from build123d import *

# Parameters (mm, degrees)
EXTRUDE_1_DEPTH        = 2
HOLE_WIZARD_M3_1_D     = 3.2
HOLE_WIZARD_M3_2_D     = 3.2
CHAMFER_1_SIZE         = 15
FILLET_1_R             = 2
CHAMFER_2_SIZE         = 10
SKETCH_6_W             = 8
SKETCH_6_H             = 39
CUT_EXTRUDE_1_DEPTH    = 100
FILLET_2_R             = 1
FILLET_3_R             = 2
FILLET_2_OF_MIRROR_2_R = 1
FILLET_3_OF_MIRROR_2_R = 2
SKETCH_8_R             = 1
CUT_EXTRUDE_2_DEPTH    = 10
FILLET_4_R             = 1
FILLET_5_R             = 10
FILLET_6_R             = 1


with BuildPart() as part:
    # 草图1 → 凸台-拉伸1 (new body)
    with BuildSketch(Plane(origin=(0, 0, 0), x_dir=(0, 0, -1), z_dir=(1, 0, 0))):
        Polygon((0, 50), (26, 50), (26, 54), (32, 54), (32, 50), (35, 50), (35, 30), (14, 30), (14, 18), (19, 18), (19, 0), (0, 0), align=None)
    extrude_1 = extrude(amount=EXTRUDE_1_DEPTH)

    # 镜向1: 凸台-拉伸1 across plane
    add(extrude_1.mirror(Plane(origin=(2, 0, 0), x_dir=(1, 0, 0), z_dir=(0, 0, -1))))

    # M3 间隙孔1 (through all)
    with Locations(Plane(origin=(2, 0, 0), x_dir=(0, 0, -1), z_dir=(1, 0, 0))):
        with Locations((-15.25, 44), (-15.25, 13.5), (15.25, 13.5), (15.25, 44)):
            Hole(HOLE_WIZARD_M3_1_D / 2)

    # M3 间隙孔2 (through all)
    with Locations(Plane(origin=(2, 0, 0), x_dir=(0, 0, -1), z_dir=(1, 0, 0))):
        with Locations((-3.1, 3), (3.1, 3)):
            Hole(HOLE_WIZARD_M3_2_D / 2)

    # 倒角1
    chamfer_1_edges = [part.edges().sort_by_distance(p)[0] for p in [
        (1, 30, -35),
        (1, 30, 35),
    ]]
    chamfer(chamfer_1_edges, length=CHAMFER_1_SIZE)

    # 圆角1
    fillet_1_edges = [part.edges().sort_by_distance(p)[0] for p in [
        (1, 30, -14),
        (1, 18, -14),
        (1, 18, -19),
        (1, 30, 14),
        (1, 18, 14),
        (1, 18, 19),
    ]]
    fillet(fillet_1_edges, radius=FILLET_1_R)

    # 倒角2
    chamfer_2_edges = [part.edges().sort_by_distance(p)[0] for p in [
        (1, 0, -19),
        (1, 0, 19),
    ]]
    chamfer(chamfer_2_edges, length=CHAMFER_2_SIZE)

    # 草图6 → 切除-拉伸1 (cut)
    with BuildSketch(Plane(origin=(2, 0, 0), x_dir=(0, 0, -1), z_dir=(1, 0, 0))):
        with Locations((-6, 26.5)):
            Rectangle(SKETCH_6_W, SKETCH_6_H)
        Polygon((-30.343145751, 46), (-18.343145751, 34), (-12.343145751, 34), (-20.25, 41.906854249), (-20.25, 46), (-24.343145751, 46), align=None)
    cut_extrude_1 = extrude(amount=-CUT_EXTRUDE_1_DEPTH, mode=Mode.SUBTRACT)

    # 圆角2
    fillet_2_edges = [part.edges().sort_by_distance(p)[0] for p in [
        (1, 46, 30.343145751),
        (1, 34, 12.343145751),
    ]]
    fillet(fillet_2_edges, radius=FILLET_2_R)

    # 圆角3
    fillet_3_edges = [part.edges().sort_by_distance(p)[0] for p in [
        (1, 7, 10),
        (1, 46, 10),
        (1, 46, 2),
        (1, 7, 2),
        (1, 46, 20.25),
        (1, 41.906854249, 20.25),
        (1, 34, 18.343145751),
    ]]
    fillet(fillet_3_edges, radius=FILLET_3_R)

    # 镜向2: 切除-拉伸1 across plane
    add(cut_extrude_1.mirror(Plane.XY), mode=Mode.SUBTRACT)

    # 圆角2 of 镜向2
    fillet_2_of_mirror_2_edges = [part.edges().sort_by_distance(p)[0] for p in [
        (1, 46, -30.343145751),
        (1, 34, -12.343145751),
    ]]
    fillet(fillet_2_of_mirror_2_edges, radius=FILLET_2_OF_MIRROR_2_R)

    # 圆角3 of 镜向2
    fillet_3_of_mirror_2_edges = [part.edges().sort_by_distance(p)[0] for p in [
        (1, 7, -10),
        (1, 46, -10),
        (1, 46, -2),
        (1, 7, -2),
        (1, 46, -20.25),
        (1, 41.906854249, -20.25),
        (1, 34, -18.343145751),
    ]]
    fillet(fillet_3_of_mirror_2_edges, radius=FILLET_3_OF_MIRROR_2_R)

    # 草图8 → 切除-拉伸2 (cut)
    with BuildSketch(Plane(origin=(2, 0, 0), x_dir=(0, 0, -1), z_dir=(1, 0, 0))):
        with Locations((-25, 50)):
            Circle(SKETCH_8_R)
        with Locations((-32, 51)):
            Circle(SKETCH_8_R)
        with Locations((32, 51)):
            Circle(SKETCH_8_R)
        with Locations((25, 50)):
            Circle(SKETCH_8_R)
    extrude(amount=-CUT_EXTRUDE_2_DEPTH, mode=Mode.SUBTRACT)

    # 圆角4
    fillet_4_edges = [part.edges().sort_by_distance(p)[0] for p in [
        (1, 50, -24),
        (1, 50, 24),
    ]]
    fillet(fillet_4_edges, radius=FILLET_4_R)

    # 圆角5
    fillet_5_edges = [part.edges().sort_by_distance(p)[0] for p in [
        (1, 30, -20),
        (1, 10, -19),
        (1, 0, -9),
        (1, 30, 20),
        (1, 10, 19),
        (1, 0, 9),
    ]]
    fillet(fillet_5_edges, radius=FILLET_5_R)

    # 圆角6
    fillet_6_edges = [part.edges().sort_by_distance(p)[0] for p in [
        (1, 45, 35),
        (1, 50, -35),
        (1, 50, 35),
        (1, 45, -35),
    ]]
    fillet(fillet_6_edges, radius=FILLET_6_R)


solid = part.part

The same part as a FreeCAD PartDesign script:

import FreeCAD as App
import Part
import Sketcher
Q = App.Units.Quantity


def edges_at(feature, points):
    """Names of the edges that pass closest to the given points."""
    edges = feature.Shape.Edges
    near = lambda p: min(range(len(edges)), key=lambda i: edges[i].distToShape(Part.Vertex(*p))[0])
    return sorted({f"Edge{near(p) + 1}" for p in points})

doc = App.newDocument("Part")
body = doc.addObject("PartDesign::Body", "Body")

# Sketch on YZ plane
sketch1 = body.newObject("Sketcher::SketchObject", "Sketch")
sketch1.AttachmentSupport = (doc.getObject("YZ_Plane"), [""])
sketch1.MapMode = "FlatFace"
sketch1.addGeometry(Part.LineSegment(App.Vector(50, -26, 0), App.Vector(50, 0, 0)), False)
sketch1.addGeometry(Part.LineSegment(App.Vector(50, 0, 0), App.Vector(0, 0, 0)), False)
sketch1.addGeometry(Part.LineSegment(App.Vector(0, 0, 0), App.Vector(0, -19, 0)), False)
sketch1.addGeometry(Part.LineSegment(App.Vector(0, -19, 0), App.Vector(18, -19, 0)), False)
sketch1.addGeometry(Part.LineSegment(App.Vector(18, -19, 0), App.Vector(18, -14, 0)), False)
sketch1.addGeometry(Part.LineSegment(App.Vector(18, -14, 0), App.Vector(30, -14, 0)), False)
sketch1.addGeometry(Part.LineSegment(App.Vector(30, -14, 0), App.Vector(30, -35, 0)), False)
sketch1.addGeometry(Part.LineSegment(App.Vector(30, -35, 0), App.Vector(50, -35, 0)), False)
sketch1.addGeometry(Part.LineSegment(App.Vector(50, -35, 0), App.Vector(50, -32, 0)), False)
sketch1.addGeometry(Part.LineSegment(App.Vector(50, -32, 0), App.Vector(54, -32, 0)), False)
sketch1.addGeometry(Part.LineSegment(App.Vector(54, -32, 0), App.Vector(54, -26, 0)), False)
sketch1.addGeometry(Part.LineSegment(App.Vector(54, -26, 0), App.Vector(50, -26, 0)), False)
sketch1.addConstraint(Sketcher.Constraint("Coincident", 0, 2, 1, 1))
sketch1.addConstraint(Sketcher.Constraint("Coincident", 1, 2, 2, 1))
sketch1.addConstraint(Sketcher.Constraint("Coincident", 2, 2, 3, 1))
sketch1.addConstraint(Sketcher.Constraint("Coincident", 3, 2, 4, 1))
sketch1.addConstraint(Sketcher.Constraint("Coincident", 4, 2, 5, 1))
sketch1.addConstraint(Sketcher.Constraint("Coincident", 5, 2, 6, 1))
sketch1.addConstraint(Sketcher.Constraint("Coincident", 6, 2, 7, 1))
sketch1.addConstraint(Sketcher.Constraint("Coincident", 7, 2, 8, 1))
sketch1.addConstraint(Sketcher.Constraint("Coincident", 8, 2, 9, 1))
sketch1.addConstraint(Sketcher.Constraint("Coincident", 9, 2, 10, 1))
sketch1.addConstraint(Sketcher.Constraint("Coincident", 10, 2, 11, 1))
sketch1.addConstraint(Sketcher.Constraint("Coincident", 11, 2, 0, 1))
sketch1.addConstraint(Sketcher.Constraint("Vertical", 0))
sketch1.addConstraint(Sketcher.Constraint("Horizontal", 1))
sketch1.addConstraint(Sketcher.Constraint("Vertical", 2))
sketch1.addConstraint(Sketcher.Constraint("Horizontal", 3))
sketch1.addConstraint(Sketcher.Constraint("Vertical", 4))
sketch1.addConstraint(Sketcher.Constraint("Horizontal", 5))
sketch1.addConstraint(Sketcher.Constraint("Vertical", 6))
sketch1.addConstraint(Sketcher.Constraint("Horizontal", 7))
sketch1.addConstraint(Sketcher.Constraint("Vertical", 8))
sketch1.addConstraint(Sketcher.Constraint("Horizontal", 9))
sketch1.addConstraint(Sketcher.Constraint("Vertical", 10))
sketch1.addConstraint(Sketcher.Constraint("Horizontal", 11))
sketch1.addConstraint(Sketcher.Constraint("Coincident", 1, 2, -1, 1))
sketch1.addConstraint(Sketcher.Constraint("Vertical", 0, 2, 7, 2))
sketch1.addConstraint(Sketcher.Constraint("DistanceX", 1, 2, 1, 1, Q("50 mm")))
sketch1.addConstraint(Sketcher.Constraint("DistanceX", 3, 1, 3, 2, Q("18 mm")))
sketch1.addConstraint(Sketcher.Constraint("DistanceX", 5, 1, 5, 2, Q("12 mm")))
sketch1.addConstraint(Sketcher.Constraint("DistanceX", 9, 1, 9, 2, Q("4 mm")))
sketch1.addConstraint(Sketcher.Constraint("DistanceY", 0, 1, 0, 2, Q("26 mm")))
sketch1.addConstraint(Sketcher.Constraint("DistanceY", 2, 2, 2, 1, Q("19 mm")))
sketch1.addConstraint(Sketcher.Constraint("DistanceY", 4, 1, 4, 2, Q("5 mm")))
sketch1.addConstraint(Sketcher.Constraint("DistanceY", 6, 2, 6, 1, Q("21 mm")))
sketch1.addConstraint(Sketcher.Constraint("DistanceY", 8, 1, 8, 2, Q("3 mm")))
pad1 = body.newObject("PartDesign::Pad", "Pad")
pad1.Profile = sketch1
pad1.Length = 2
doc.recompute()

mirrored = body.newObject("PartDesign::Mirrored", "Mirrored")
mirrored.Originals = [pad1]
mirrored.MirrorPlane = (doc.getObject("XY_Plane"), [""])
body.Tip = mirrored

# Sketch on YZ plane
sketch2 = body.newObject("Sketcher::SketchObject", "Sketch001")
sketch2.AttachmentSupport = (doc.getObject("YZ_Plane"), [""])
sketch2.MapMode = "FlatFace"
sketch2.AttachmentOffset = App.Placement(App.Vector(0, 0, 2), App.Rotation())
sketch2.addGeometry(Part.Circle(App.Vector(44, 15.25, 0), App.Vector(0, 0, 1), 1.6), False)
sketch2.addGeometry(Part.Circle(App.Vector(13.5, 15.25, 0), App.Vector(0, 0, 1), 1.6), False)
sketch2.addGeometry(Part.Circle(App.Vector(13.5, -15.25, 0), App.Vector(0, 0, 1), 1.6), False)
sketch2.addGeometry(Part.Circle(App.Vector(44, -15.25, 0), App.Vector(0, 0, 1), 1.6), False)
sketch2.addConstraint(Sketcher.Constraint("Equal", 0, 1))
sketch2.addConstraint(Sketcher.Constraint("Equal", 1, 2))
sketch2.addConstraint(Sketcher.Constraint("Equal", 2, 3))
sketch2.addConstraint(Sketcher.Constraint("Symmetric", 1, 3, 2, 3, -1))
sketch2.addConstraint(Sketcher.Constraint("Symmetric", 0, 3, 3, 3, -1))
sketch2.addConstraint(Sketcher.Constraint("Horizontal", 0, 3, 1, 3))
sketch2.addConstraint(Sketcher.Constraint("Diameter", 0, Q("3.2 mm")))
sketch2.addConstraint(Sketcher.Constraint("DistanceX", -1, 1, 0, 3, Q("44 mm")))
sketch2.addConstraint(Sketcher.Constraint("DistanceX", -1, 1, 1, 3, Q("13.5 mm")))
sketch2.addConstraint(Sketcher.Constraint("DistanceY", 2, 3, 1, 3, Q("30.5 mm")))
doc.recompute()
hole = body.newObject("PartDesign::Hole", "Hole")
hole.Profile = sketch2
hole.ThreadType = "None"
hole.Diameter = 3.2
hole.DepthType = "ThroughAll"

# Sketch on YZ plane
sketch3 = body.newObject("Sketcher::SketchObject", "Sketch002")
sketch3.AttachmentSupport = (doc.getObject("YZ_Plane"), [""])
sketch3.MapMode = "FlatFace"
sketch3.AttachmentOffset = App.Placement(App.Vector(0, 0, 2), App.Rotation())
sketch3.addGeometry(Part.Circle(App.Vector(3, 3.1, 0), App.Vector(0, 0, 1), 1.6), False)
sketch3.addGeometry(Part.Circle(App.Vector(3, -3.1, 0), App.Vector(0, 0, 1), 1.6), False)
sketch3.addConstraint(Sketcher.Constraint("Equal", 0, 1))
sketch3.addConstraint(Sketcher.Constraint("Symmetric", 0, 3, 1, 3, -1))
sketch3.addConstraint(Sketcher.Constraint("Diameter", 0, Q("3.2 mm")))
sketch3.addConstraint(Sketcher.Constraint("DistanceX", -1, 1, 0, 3, Q("3 mm")))
sketch3.addConstraint(Sketcher.Constraint("DistanceY", -1, 1, 0, 3, Q("3.1 mm")))
doc.recompute()
hole2 = body.newObject("PartDesign::Hole", "Hole001")
hole2.Profile = sketch3
hole2.ThreadType = "None"
hole2.Diameter = 3.2
hole2.DepthType = "ThroughAll"
doc.recompute()

chamfer = body.newObject("PartDesign::Chamfer", "Chamfer")
chamfer.Base = (hole2, edges_at(hole2, [(1, 30, -35), (1, 30, 35)]))
chamfer.Size = 15
doc.recompute()

fillet = body.newObject("PartDesign::Fillet", "Fillet")
fillet.Base = (chamfer, edges_at(chamfer, [
    (1, 30, -14),
    (1, 18, -14),
    (1, 18, -19),
    (1, 30, 14),
    (1, 18, 14),
    (1, 18, 19),
]))
fillet.Radius = 2
doc.recompute()

chamfer2 = body.newObject("PartDesign::Chamfer", "Chamfer001")
chamfer2.Base = (fillet, edges_at(fillet, [(1, 0, -19), (1, 0, 19)]))
chamfer2.Size = 10

# Sketch on YZ plane
sketch4 = body.newObject("Sketcher::SketchObject", "Sketch003")
sketch4.AttachmentSupport = (doc.getObject("YZ_Plane"), [""])
sketch4.MapMode = "FlatFace"
sketch4.AttachmentOffset = App.Placement(App.Vector(0, 0, 2), App.Rotation())
sketch4.addGeometry(Part.LineSegment(App.Vector(46, 10, 0), App.Vector(7, 10, 0)), False)
sketch4.addGeometry(Part.LineSegment(App.Vector(7, 10, 0), App.Vector(7, 2, 0)), False)
sketch4.addGeometry(Part.LineSegment(App.Vector(7, 2, 0), App.Vector(46, 2, 0)), False)
sketch4.addGeometry(Part.LineSegment(App.Vector(46, 2, 0), App.Vector(46, 10, 0)), False)
sketch4.addGeometry(Part.LineSegment(App.Vector(46, 30.343146, 0), App.Vector(34, 18.343146, 0)), False)
sketch4.addGeometry(Part.LineSegment(App.Vector(34, 18.343146, 0), App.Vector(34, 12.343146, 0)), False)
sketch4.addGeometry(Part.LineSegment(App.Vector(34, 12.343146, 0), App.Vector(41.906854, 20.25, 0)), False)
sketch4.addGeometry(Part.LineSegment(App.Vector(41.906854, 20.25, 0), App.Vector(46, 20.25, 0)), False)
sketch4.addGeometry(Part.LineSegment(App.Vector(46, 20.25, 0), App.Vector(46, 30.343146, 0)), False)
sketch4.addConstraint(Sketcher.Constraint("Coincident", 0, 2, 1, 1))
sketch4.addConstraint(Sketcher.Constraint("Coincident", 1, 2, 2, 1))
sketch4.addConstraint(Sketcher.Constraint("Coincident", 2, 2, 3, 1))
sketch4.addConstraint(Sketcher.Constraint("Coincident", 3, 2, 0, 1))
sketch4.addConstraint(Sketcher.Constraint("Coincident", 4, 2, 5, 1))
sketch4.addConstraint(Sketcher.Constraint("Coincident", 5, 2, 6, 1))
sketch4.addConstraint(Sketcher.Constraint("Coincident", 6, 2, 7, 1))
sketch4.addConstraint(Sketcher.Constraint("Coincident", 7, 2, 8, 1))
sketch4.addConstraint(Sketcher.Constraint("Coincident", 8, 2, 4, 1))
sketch4.addConstraint(Sketcher.Constraint("Horizontal", 0))
sketch4.addConstraint(Sketcher.Constraint("Vertical", 1))
sketch4.addConstraint(Sketcher.Constraint("Horizontal", 2))
sketch4.addConstraint(Sketcher.Constraint("Vertical", 3))
sketch4.addConstraint(Sketcher.Constraint("Vertical", 5))
sketch4.addConstraint(Sketcher.Constraint("Horizontal", 7))
sketch4.addConstraint(Sketcher.Constraint("Vertical", 8))
sketch4.addConstraint(Sketcher.Constraint("Parallel", 4, 6))
sketch4.addConstraint(Sketcher.Constraint("Vertical", 3, 2, 7, 2))
sketch4.addConstraint(Sketcher.Constraint("DistanceX", 0, 2, 0, 1, Q("39 mm")))
sketch4.addConstraint(Sketcher.Constraint("DistanceY", 1, 2, 1, 1, Q("8 mm")))
sketch4.addConstraint(Sketcher.Constraint("DistanceY", 5, 2, 5, 1, Q("6 mm")))
sketch4.addConstraint(Sketcher.Constraint("Angle", 4, Q("-135 deg")))
sketch4.addConstraint(Sketcher.Constraint("DistanceX", -1, 1, 0, 2, Q("7 mm")))
sketch4.addConstraint(Sketcher.Constraint("DistanceY", -1, 1, 0, 2, Q("10 mm")))
sketch4.addConstraint(Sketcher.Constraint("DistanceX", -1, 1, 4, 2, Q("34 mm")))
sketch4.addConstraint(Sketcher.Constraint("DistanceY", -1, 1, 6, 2, Q("20.25 mm")))
sketch4.addConstraint(Sketcher.Constraint("Distance", 6, Q("11.181981 mm")))
pocket1 = body.newObject("PartDesign::Pocket", "Pocket")
pocket1.Profile = sketch4
pocket1.Length = 100
doc.recompute()

fillet2 = body.newObject("PartDesign::Fillet", "Fillet001")
fillet2.Base = (pocket1, edges_at(pocket1, [(1, 46, 30.343), (1, 34, 12.343)]))
fillet2.Radius = 1
doc.recompute()

fillet3 = body.newObject("PartDesign::Fillet", "Fillet002")
fillet3.Base = (fillet2, edges_at(fillet2, [
    (1, 7, 10),
    (1, 46, 10),
    (1, 46, 2),
    (1, 7, 2),
    (1, 46, 20.25),
    (1, 41.907, 20.25),
    (1, 34, 18.343),
]))
fillet3.Radius = 2
doc.recompute()

mirrored2 = body.newObject("PartDesign::Mirrored", "Mirrored001")
mirrored2.Originals = [pocket1]
mirrored2.MirrorPlane = (doc.getObject("XY_Plane"), [""])
body.Tip = mirrored2
doc.recompute()

fillet4 = body.newObject("PartDesign::Fillet", "Fillet003")
fillet4.Base = (mirrored2, edges_at(mirrored2, [(1, 46, -30.343), (1, 34, -12.343)]))
fillet4.Radius = 1
doc.recompute()

fillet5 = body.newObject("PartDesign::Fillet", "Fillet004")
fillet5.Base = (fillet4, edges_at(fillet4, [
    (1, 7, -10),
    (1, 46, -10),
    (1, 46, -2),
    (1, 7, -2),
    (1, 46, -20.25),
    (1, 41.907, -20.25),
    (1, 34, -18.343),
]))
fillet5.Radius = 2

# Sketch on YZ plane
sketch5 = body.newObject("Sketcher::SketchObject", "Sketch004")
sketch5.AttachmentSupport = (doc.getObject("YZ_Plane"), [""])
sketch5.MapMode = "FlatFace"
sketch5.AttachmentOffset = App.Placement(App.Vector(0, 0, 2), App.Rotation())
sketch5.addGeometry(Part.Circle(App.Vector(50, 25, 0), App.Vector(0, 0, 1), 1), False)
sketch5.addGeometry(Part.Circle(App.Vector(51, 32, 0), App.Vector(0, 0, 1), 1), False)
sketch5.addGeometry(Part.Circle(App.Vector(51, -32, 0), App.Vector(0, 0, 1), 1), False)
sketch5.addGeometry(Part.Circle(App.Vector(50, -25, 0), App.Vector(0, 0, 1), 1), False)
sketch5.addConstraint(Sketcher.Constraint("Equal", 0, 1))
sketch5.addConstraint(Sketcher.Constraint("Equal", 1, 2))
sketch5.addConstraint(Sketcher.Constraint("Equal", 2, 3))
sketch5.addConstraint(Sketcher.Constraint("Symmetric", 1, 3, 2, 3, -1))
sketch5.addConstraint(Sketcher.Constraint("Symmetric", 0, 3, 3, 3, -1))
sketch5.addConstraint(Sketcher.Constraint("Diameter", 0, Q("2 mm")))
sketch5.addConstraint(Sketcher.Constraint("DistanceX", -1, 1, 0, 3, Q("50 mm")))
sketch5.addConstraint(Sketcher.Constraint("DistanceY", -1, 1, 0, 3, Q("25 mm")))
sketch5.addConstraint(Sketcher.Constraint("DistanceX", -1, 1, 1, 3, Q("51 mm")))
sketch5.addConstraint(Sketcher.Constraint("DistanceY", -1, 1, 1, 3, Q("32 mm")))
pocket2 = body.newObject("PartDesign::Pocket", "Pocket001")
pocket2.Profile = sketch5
pocket2.Length = 10
doc.recompute()

fillet6 = body.newObject("PartDesign::Fillet", "Fillet005")
fillet6.Base = (pocket2, edges_at(pocket2, [(1, 50, -24), (1, 50, 24)]))
fillet6.Radius = 1
doc.recompute()

fillet7 = body.newObject("PartDesign::Fillet", "Fillet006")
fillet7.Base = (fillet6, edges_at(fillet6, [
    (1, 30, -20),
    (1, 10, -19),
    (1, 0, -9),
    (1, 30, 20),
    (1, 10, 19),
    (1, 0, 9),
]))
fillet7.Radius = 10
doc.recompute()

fillet8 = body.newObject("PartDesign::Fillet", "Fillet007")
fillet8.Base = (fillet7, edges_at(fillet7, [
    (1, 45, 35),
    (1, 50, -35),
    (1, 50, 35),
    (1, 45, -35),
]))
fillet8.Radius = 1

doc.recompute()
